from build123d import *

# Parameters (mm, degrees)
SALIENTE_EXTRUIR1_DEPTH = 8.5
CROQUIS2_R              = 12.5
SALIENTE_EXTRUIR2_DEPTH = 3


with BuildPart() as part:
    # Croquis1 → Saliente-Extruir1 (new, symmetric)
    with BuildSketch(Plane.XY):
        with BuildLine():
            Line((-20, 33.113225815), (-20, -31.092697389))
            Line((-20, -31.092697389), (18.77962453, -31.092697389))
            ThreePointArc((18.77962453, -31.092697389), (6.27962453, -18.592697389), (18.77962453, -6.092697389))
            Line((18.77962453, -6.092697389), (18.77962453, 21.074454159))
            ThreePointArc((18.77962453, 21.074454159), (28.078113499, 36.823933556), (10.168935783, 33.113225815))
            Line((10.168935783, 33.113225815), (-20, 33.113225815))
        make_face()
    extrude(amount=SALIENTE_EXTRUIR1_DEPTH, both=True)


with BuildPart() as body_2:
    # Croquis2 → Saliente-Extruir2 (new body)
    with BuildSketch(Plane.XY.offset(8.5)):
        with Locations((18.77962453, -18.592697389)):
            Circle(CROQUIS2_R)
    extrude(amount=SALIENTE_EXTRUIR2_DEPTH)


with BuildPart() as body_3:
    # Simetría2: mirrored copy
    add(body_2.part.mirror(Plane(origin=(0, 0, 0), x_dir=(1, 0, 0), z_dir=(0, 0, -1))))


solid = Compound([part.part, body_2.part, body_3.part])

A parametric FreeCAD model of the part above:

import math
import FreeCAD as App
import Part
import Sketcher
Q = App.Units.Quantity

doc = App.newDocument("Part")
params = doc.addObject("Spreadsheet::Sheet", "Params")
for row, (alias, value) in enumerate([
    ("sketch1_radius", "10 mm"),
    ("sketch1_radius2", "12.5 mm"),
    ("pad1_length", "17 mm"),
    ("sketch2_diameter", "25 mm"),
    ("pad2_length", "3 mm"),
], start=1):
    params.set(f"A{row}", alias)
    params.set(f"B{row}", "=" + value)
    params.setAlias(f"B{row}", alias)

body = doc.addObject("PartDesign::Body", "Body")

sketch1 = body.newObject("Sketcher::SketchObject", "Sketch")
sketch1.AttachmentSupport = (doc.getObject("XY_Plane"), [""])
sketch1.MapMode = "FlatFace"
sketch1.addGeometry(Part.LineSegment(App.Vector(-20, 33, 0), App.Vector(-20, -31, 0)), False)
sketch1.addGeometry(Part.LineSegment(App.Vector(-20, -31, 0), App.Vector(19, -31, 0)), False)
sketch1.addGeometry(Part.ArcOfCircle(Part.Circle(App.Vector(19, -19, 0), App.Vector(0, 0, 1), 12), math.radians(90), math.radians(270)), False)
sketch1.addGeometry(Part.LineSegment(App.Vector(19, -6, 0), App.Vector(19, 21, 0)), False)
sketch1.addGeometry(Part.ArcOfCircle(Part.Circle(App.Vector(20, 31, 0), App.Vector(0, 0, 1), 10), math.radians(-97), math.radians(168)), False)
sketch1.addGeometry(Part.LineSegment(App.Vector(10, 33, 0), App.Vector(-20, 33, 0)), False)
sketch1.addConstraint(Sketcher.Constraint("Coincident", 0, 2, 1, 1))
sketch1.addConstraint(Sketcher.Constraint("Tangent", 1, 2, 2, 2))
sketch1.addConstraint(Sketcher.Constraint("Coincident", 2, 1, 3, 1))
sketch1.addConstraint(Sketcher.Constraint("Coincident", 3, 2, 4, 1))
sketch1.addConstraint(Sketcher.Constraint("Coincident", 4, 2, 5, 1))
sketch1.addConstraint(Sketcher.Constraint("Coincident", 5, 2, 0, 1))
sketch1.addConstraint(Sketcher.Constraint("Vertical", 0))
sketch1.addConstraint(Sketcher.Constraint("Horizontal", 1))
sketch1.addConstraint(Sketcher.Constraint("Vertical", 3))
sketch1.addConstraint(Sketcher.Constraint("Horizontal", 5))
sketch1.addConstraint(Sketcher.Constraint("Vertical", 1, 2, 2, 1))
sketch1.addConstraint(Sketcher.Constraint("Radius", 4, Q("10 mm")))
sketch1.addConstraint(Sketcher.Constraint("Radius", 2, Q("12.5 mm")))
sketch1.addConstraint(Sketcher.Constraint("DistanceX", 0, 2, -1, 1, Q("20 mm")))
sketch1.addConstraint(Sketcher.Constraint("DistanceY", 3, 1, 3, 2, Q("27.167152 mm")))
sketch1.addConstraint(Sketcher.Constraint("DistanceX", 1, 1, 1, 2, Q("38.779625 mm")))
sketch1.addConstraint(Sketcher.Constraint("DistanceX", 5, 2, 5, 1, Q("30.168936 mm")))
sketch1.addConstraint(Sketcher.Constraint("DistanceY", 0, 2, 0, 1, Q("64.205923 mm")))
sketch1.addConstraint(Sketcher.Constraint("DistanceY", -1, 1, 4, 3, Q("31.006378 mm")))
sketch1.setExpression("Constraints[11]", "Params.sketch1_radius")
sketch1.setExpression("Constraints[12]", "Params.sketch1_radius2")
pad1 = body.newObject("PartDesign::Pad", "Pad")
pad1.Profile = sketch1
pad1.setExpression("Length", "Params.pad1_length")
pad1.Midplane = True
body2 = doc.addObject("PartDesign::Body", "Body001")

sketch2 = body2.newObject("Sketcher::SketchObject", "Sketch001")
sketch2.AttachmentSupport = (doc.getObject("XY_Plane001"), [""])
sketch2.MapMode = "FlatFace"
sketch2.AttachmentOffset = App.Placement(App.Vector(0, 0, 8.5), App.Rotation())
sketch2.addGeometry(Part.Circle(App.Vector(19, -19, 0), App.Vector(0, 0, 1), 12), False)
sketch2.addConstraint(Sketcher.Constraint("Diameter", 0, Q("25 mm")))
sketch2.addConstraint(Sketcher.Constraint("DistanceX", -1, 1, 0, 3, Q("18.779625 mm")))
sketch2.addConstraint(Sketcher.Constraint("DistanceY", 0, 3, -1, 1, Q("18.592697 mm")))
sketch2.setExpression("Constraints[0]", "Params.sketch2_diameter")
pad2 = body2.newObject("PartDesign::Pad", "Pad001")
pad2.Profile = sketch2
pad2.setExpression("Length", "Params.pad2_length")
body3 = doc.addObject("PartDesign::Body", "Body002")
doc.recompute()

mirroring = doc.addObject("Part::Mirroring", "Mirroring")
mirroring.Source = body2
mirroring.Base = App.Vector(0, 0, 0)
mirroring.Normal = App.Vector(0, 0, -1)
body3.BaseFeature = mirroring
doc.recompute()
mirroring.Visibility = False

doc.recompute()
